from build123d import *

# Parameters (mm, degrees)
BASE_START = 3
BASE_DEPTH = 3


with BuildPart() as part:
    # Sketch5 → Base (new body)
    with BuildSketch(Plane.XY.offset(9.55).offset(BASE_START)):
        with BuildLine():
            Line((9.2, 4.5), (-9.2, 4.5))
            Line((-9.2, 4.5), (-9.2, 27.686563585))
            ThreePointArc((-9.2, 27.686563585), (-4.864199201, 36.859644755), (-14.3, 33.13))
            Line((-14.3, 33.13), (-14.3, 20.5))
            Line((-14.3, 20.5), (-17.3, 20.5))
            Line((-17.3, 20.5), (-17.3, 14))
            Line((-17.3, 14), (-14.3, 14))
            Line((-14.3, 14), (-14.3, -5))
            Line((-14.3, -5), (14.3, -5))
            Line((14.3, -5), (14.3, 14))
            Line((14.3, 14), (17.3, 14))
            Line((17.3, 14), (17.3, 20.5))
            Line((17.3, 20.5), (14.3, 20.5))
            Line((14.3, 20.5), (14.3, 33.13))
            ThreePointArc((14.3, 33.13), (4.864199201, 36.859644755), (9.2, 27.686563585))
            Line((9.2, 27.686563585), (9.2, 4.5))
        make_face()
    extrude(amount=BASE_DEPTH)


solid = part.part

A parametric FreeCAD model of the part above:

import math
import FreeCAD as App
import Part
import Sketcher
from FreeCAD import Vector

doc = App.newDocument("Part")
params = doc.addObject("Spreadsheet::Sheet", "Params")
for row, (alias, value) in enumerate([
    ("sketch1_width", "3 mm"),
    ("sketch1_height", "19 mm"),
    ("sketch1_width2", "18.4 mm"),
    ("sketch1_width3", "28.6 mm"),
    ("sketch1_height2", "6.5 mm"),
    ("pad1_length", "3 mm"),
], start=1):
    params.set(f"A{row}", alias)
    params.set(f"B{row}", "=" + value)
    params.setAlias(f"B{row}", alias)

body = doc.addObject("PartDesign::Body", "Body")

# Sketch on XY plane
sketch1 = body.newObject("Sketcher::SketchObject", "Sketch")
sketch1.AttachmentSupport = (doc.getObject("XY_Plane"), [""])
sketch1.MapMode = "FlatFace"
sketch1.AttachmentOffset = App.Placement(Vector(0, 0, 12.55), App.Rotation())
sketch1.addGeometry([
    Part.LineSegment(Vector(9.2, 4.5, 0), Vector(-9.2, 4.5, 0)),  # 0
    Part.LineSegment(Vector(-9.2, 4.5, 0), Vector(-9.2, 27.686564, 0)),  # 1
    Part.ArcOfCircle(Part.Circle(Vector(-8.845, 33.13, 0), Vector(0, 0, 1), 5.455), math.radians(-93.731327), math.radians(180)),  # 2
    Part.LineSegment(Vector(-14.3, 33.13, 0), Vector(-14.3, 20.5, 0)),  # 3
    Part.LineSegment(Vector(-14.3, 20.5, 0), Vector(-17.3, 20.5, 0)),  # 4
    Part.LineSegment(Vector(-17.3, 20.5, 0), Vector(-17.3, 14, 0)),  # 5
    Part.LineSegment(Vector(-17.3, 14, 0), Vector(-14.3, 14, 0)),  # 6
    Part.LineSegment(Vector(-14.3, 14, 0), Vector(-14.3, -5, 0)),  # 7
    Part.LineSegment(Vector(-14.3, -5, 0), Vector(14.3, -5, 0)),  # 8
    Part.LineSegment(Vector(14.3, -5, 0), Vector(14.3, 14, 0)),  # 9
    Part.LineSegment(Vector(14.3, 14, 0), Vector(17.3, 14, 0)),  # 10
    Part.LineSegment(Vector(17.3, 14, 0), Vector(17.3, 20.5, 0)),  # 11
    Part.LineSegment(Vector(17.3, 20.5, 0), Vector(14.3, 20.5, 0)),  # 12
    Part.LineSegment(Vector(14.3, 20.5, 0), Vector(14.3, 33.13, 0)),  # 13
    Part.ArcOfCircle(Part.Circle(Vector(8.845, 33.13, 0), Vector(0, 0, 1), 5.455), math.radians(0), math.radians(273.731327)),  # 14
    Part.LineSegment(Vector(9.2, 27.686564, 0), Vector(9.2, 4.5, 0)),  # 15
], False)
sketch1.addConstraint([
    Sketcher.Constraint("Coincident", 0, 2, 1, 1),
    Sketcher.Constraint("Coincident", 1, 2, 2, 1),
    Sketcher.Constraint("Tangent", 2, 2, 3, 1),
    Sketcher.Constraint("Coincident", 3, 2, 4, 1),
    Sketcher.Constraint("Coincident", 4, 2, 5, 1),
    Sketcher.Constraint("Coincident", 5, 2, 6, 1),
    Sketcher.Constraint("Coincident", 6, 2, 7, 1),
    Sketcher.Constraint("Coincident", 7, 2, 8, 1),
    Sketcher.Constraint("Coincident", 8, 2, 9, 1),
    Sketcher.Constraint("Coincident", 9, 2, 10, 1),
    Sketcher.Constraint("Coincident", 10, 2, 11, 1),
    Sketcher.Constraint("Coincident", 11, 2, 12, 1),
    Sketcher.Constraint("Coincident", 12, 2, 13, 1),
    Sketcher.Constraint("Tangent", 13, 2, 14, 1),
    Sketcher.Constraint("Coincident", 14, 2, 15, 1),
    Sketcher.Constraint("Coincident", 15, 2, 0, 1),
    Sketcher.Constraint("Horizontal", 0),
    Sketcher.Constraint("Vertical", 1),
    Sketcher.Constraint("Vertical", 3),
    Sketcher.Constraint("Horizontal", 4),
    Sketcher.Constraint("Vertical", 5),
    Sketcher.Constraint("Horizontal", 6),
    Sketcher.Constraint("Vertical", 7),
    Sketcher.Constraint("Horizontal", 8),
    Sketcher.Constraint("Vertical", 9),
    Sketcher.Constraint("Horizontal", 10),
    Sketcher.Constraint("Vertical", 11),
    Sketcher.Constraint("Horizontal", 12),
    Sketcher.Constraint("Vertical", 13),
    Sketcher.Constraint("Vertical", 15),
    Sketcher.Constraint("Equal", 2, 14),
    Sketcher.Constraint("Symmetric", 2, 3, 14, 3, -2),
    Sketcher.Constraint("Symmetric", 6, 2, 9, 2, -2),
    Sketcher.Constraint("Symmetric", 4, 2, 11, 2, -2),
    Sketcher.Constraint("Horizontal", 1, 2, 14, 2),
    Sketcher.Constraint("Vertical", 3, 2, 6, 2),
    Sketcher.Constraint("DistanceX", 4, 2, 4, 1, 3.0),
    Sketcher.Constraint("DistanceY", 7, 2, 7, 1, 19.0),
    Sketcher.Constraint("DistanceX", 0, 2, 0, 1, 18.4),
    Sketcher.Constraint("DistanceX", 8, 1, 8, 2, 28.6),
    Sketcher.Constraint("DistanceY", 5, 2, 5, 1, 6.5),
    Sketcher.Constraint("DistanceY", -1, 1, 5, 2, 14.0),
    Sketcher.Constraint("Radius", 2, 5.455),
    Sketcher.Constraint("DistanceY", 0, 2, 3, 2, 16.0),
    Sketcher.Constraint("DistanceY", 3, 2, 3, 1, 12.63),
])
sketch1.setExpression("Constraints[36]", "Params.sketch1_width")
sketch1.setExpression("Constraints[37]", "Params.sketch1_height")
sketch1.setExpression("Constraints[38]", "Params.sketch1_width2")
sketch1.setExpression("Constraints[39]", "Params.sketch1_width3")
sketch1.setExpression("Constraints[40]", "Params.sketch1_height2")
pad1 = body.newObject("PartDesign::Pad", "Pad")
pad1.Profile = sketch1
pad1.setExpression("Length", "Params.pad1_length")

doc.recompute()
